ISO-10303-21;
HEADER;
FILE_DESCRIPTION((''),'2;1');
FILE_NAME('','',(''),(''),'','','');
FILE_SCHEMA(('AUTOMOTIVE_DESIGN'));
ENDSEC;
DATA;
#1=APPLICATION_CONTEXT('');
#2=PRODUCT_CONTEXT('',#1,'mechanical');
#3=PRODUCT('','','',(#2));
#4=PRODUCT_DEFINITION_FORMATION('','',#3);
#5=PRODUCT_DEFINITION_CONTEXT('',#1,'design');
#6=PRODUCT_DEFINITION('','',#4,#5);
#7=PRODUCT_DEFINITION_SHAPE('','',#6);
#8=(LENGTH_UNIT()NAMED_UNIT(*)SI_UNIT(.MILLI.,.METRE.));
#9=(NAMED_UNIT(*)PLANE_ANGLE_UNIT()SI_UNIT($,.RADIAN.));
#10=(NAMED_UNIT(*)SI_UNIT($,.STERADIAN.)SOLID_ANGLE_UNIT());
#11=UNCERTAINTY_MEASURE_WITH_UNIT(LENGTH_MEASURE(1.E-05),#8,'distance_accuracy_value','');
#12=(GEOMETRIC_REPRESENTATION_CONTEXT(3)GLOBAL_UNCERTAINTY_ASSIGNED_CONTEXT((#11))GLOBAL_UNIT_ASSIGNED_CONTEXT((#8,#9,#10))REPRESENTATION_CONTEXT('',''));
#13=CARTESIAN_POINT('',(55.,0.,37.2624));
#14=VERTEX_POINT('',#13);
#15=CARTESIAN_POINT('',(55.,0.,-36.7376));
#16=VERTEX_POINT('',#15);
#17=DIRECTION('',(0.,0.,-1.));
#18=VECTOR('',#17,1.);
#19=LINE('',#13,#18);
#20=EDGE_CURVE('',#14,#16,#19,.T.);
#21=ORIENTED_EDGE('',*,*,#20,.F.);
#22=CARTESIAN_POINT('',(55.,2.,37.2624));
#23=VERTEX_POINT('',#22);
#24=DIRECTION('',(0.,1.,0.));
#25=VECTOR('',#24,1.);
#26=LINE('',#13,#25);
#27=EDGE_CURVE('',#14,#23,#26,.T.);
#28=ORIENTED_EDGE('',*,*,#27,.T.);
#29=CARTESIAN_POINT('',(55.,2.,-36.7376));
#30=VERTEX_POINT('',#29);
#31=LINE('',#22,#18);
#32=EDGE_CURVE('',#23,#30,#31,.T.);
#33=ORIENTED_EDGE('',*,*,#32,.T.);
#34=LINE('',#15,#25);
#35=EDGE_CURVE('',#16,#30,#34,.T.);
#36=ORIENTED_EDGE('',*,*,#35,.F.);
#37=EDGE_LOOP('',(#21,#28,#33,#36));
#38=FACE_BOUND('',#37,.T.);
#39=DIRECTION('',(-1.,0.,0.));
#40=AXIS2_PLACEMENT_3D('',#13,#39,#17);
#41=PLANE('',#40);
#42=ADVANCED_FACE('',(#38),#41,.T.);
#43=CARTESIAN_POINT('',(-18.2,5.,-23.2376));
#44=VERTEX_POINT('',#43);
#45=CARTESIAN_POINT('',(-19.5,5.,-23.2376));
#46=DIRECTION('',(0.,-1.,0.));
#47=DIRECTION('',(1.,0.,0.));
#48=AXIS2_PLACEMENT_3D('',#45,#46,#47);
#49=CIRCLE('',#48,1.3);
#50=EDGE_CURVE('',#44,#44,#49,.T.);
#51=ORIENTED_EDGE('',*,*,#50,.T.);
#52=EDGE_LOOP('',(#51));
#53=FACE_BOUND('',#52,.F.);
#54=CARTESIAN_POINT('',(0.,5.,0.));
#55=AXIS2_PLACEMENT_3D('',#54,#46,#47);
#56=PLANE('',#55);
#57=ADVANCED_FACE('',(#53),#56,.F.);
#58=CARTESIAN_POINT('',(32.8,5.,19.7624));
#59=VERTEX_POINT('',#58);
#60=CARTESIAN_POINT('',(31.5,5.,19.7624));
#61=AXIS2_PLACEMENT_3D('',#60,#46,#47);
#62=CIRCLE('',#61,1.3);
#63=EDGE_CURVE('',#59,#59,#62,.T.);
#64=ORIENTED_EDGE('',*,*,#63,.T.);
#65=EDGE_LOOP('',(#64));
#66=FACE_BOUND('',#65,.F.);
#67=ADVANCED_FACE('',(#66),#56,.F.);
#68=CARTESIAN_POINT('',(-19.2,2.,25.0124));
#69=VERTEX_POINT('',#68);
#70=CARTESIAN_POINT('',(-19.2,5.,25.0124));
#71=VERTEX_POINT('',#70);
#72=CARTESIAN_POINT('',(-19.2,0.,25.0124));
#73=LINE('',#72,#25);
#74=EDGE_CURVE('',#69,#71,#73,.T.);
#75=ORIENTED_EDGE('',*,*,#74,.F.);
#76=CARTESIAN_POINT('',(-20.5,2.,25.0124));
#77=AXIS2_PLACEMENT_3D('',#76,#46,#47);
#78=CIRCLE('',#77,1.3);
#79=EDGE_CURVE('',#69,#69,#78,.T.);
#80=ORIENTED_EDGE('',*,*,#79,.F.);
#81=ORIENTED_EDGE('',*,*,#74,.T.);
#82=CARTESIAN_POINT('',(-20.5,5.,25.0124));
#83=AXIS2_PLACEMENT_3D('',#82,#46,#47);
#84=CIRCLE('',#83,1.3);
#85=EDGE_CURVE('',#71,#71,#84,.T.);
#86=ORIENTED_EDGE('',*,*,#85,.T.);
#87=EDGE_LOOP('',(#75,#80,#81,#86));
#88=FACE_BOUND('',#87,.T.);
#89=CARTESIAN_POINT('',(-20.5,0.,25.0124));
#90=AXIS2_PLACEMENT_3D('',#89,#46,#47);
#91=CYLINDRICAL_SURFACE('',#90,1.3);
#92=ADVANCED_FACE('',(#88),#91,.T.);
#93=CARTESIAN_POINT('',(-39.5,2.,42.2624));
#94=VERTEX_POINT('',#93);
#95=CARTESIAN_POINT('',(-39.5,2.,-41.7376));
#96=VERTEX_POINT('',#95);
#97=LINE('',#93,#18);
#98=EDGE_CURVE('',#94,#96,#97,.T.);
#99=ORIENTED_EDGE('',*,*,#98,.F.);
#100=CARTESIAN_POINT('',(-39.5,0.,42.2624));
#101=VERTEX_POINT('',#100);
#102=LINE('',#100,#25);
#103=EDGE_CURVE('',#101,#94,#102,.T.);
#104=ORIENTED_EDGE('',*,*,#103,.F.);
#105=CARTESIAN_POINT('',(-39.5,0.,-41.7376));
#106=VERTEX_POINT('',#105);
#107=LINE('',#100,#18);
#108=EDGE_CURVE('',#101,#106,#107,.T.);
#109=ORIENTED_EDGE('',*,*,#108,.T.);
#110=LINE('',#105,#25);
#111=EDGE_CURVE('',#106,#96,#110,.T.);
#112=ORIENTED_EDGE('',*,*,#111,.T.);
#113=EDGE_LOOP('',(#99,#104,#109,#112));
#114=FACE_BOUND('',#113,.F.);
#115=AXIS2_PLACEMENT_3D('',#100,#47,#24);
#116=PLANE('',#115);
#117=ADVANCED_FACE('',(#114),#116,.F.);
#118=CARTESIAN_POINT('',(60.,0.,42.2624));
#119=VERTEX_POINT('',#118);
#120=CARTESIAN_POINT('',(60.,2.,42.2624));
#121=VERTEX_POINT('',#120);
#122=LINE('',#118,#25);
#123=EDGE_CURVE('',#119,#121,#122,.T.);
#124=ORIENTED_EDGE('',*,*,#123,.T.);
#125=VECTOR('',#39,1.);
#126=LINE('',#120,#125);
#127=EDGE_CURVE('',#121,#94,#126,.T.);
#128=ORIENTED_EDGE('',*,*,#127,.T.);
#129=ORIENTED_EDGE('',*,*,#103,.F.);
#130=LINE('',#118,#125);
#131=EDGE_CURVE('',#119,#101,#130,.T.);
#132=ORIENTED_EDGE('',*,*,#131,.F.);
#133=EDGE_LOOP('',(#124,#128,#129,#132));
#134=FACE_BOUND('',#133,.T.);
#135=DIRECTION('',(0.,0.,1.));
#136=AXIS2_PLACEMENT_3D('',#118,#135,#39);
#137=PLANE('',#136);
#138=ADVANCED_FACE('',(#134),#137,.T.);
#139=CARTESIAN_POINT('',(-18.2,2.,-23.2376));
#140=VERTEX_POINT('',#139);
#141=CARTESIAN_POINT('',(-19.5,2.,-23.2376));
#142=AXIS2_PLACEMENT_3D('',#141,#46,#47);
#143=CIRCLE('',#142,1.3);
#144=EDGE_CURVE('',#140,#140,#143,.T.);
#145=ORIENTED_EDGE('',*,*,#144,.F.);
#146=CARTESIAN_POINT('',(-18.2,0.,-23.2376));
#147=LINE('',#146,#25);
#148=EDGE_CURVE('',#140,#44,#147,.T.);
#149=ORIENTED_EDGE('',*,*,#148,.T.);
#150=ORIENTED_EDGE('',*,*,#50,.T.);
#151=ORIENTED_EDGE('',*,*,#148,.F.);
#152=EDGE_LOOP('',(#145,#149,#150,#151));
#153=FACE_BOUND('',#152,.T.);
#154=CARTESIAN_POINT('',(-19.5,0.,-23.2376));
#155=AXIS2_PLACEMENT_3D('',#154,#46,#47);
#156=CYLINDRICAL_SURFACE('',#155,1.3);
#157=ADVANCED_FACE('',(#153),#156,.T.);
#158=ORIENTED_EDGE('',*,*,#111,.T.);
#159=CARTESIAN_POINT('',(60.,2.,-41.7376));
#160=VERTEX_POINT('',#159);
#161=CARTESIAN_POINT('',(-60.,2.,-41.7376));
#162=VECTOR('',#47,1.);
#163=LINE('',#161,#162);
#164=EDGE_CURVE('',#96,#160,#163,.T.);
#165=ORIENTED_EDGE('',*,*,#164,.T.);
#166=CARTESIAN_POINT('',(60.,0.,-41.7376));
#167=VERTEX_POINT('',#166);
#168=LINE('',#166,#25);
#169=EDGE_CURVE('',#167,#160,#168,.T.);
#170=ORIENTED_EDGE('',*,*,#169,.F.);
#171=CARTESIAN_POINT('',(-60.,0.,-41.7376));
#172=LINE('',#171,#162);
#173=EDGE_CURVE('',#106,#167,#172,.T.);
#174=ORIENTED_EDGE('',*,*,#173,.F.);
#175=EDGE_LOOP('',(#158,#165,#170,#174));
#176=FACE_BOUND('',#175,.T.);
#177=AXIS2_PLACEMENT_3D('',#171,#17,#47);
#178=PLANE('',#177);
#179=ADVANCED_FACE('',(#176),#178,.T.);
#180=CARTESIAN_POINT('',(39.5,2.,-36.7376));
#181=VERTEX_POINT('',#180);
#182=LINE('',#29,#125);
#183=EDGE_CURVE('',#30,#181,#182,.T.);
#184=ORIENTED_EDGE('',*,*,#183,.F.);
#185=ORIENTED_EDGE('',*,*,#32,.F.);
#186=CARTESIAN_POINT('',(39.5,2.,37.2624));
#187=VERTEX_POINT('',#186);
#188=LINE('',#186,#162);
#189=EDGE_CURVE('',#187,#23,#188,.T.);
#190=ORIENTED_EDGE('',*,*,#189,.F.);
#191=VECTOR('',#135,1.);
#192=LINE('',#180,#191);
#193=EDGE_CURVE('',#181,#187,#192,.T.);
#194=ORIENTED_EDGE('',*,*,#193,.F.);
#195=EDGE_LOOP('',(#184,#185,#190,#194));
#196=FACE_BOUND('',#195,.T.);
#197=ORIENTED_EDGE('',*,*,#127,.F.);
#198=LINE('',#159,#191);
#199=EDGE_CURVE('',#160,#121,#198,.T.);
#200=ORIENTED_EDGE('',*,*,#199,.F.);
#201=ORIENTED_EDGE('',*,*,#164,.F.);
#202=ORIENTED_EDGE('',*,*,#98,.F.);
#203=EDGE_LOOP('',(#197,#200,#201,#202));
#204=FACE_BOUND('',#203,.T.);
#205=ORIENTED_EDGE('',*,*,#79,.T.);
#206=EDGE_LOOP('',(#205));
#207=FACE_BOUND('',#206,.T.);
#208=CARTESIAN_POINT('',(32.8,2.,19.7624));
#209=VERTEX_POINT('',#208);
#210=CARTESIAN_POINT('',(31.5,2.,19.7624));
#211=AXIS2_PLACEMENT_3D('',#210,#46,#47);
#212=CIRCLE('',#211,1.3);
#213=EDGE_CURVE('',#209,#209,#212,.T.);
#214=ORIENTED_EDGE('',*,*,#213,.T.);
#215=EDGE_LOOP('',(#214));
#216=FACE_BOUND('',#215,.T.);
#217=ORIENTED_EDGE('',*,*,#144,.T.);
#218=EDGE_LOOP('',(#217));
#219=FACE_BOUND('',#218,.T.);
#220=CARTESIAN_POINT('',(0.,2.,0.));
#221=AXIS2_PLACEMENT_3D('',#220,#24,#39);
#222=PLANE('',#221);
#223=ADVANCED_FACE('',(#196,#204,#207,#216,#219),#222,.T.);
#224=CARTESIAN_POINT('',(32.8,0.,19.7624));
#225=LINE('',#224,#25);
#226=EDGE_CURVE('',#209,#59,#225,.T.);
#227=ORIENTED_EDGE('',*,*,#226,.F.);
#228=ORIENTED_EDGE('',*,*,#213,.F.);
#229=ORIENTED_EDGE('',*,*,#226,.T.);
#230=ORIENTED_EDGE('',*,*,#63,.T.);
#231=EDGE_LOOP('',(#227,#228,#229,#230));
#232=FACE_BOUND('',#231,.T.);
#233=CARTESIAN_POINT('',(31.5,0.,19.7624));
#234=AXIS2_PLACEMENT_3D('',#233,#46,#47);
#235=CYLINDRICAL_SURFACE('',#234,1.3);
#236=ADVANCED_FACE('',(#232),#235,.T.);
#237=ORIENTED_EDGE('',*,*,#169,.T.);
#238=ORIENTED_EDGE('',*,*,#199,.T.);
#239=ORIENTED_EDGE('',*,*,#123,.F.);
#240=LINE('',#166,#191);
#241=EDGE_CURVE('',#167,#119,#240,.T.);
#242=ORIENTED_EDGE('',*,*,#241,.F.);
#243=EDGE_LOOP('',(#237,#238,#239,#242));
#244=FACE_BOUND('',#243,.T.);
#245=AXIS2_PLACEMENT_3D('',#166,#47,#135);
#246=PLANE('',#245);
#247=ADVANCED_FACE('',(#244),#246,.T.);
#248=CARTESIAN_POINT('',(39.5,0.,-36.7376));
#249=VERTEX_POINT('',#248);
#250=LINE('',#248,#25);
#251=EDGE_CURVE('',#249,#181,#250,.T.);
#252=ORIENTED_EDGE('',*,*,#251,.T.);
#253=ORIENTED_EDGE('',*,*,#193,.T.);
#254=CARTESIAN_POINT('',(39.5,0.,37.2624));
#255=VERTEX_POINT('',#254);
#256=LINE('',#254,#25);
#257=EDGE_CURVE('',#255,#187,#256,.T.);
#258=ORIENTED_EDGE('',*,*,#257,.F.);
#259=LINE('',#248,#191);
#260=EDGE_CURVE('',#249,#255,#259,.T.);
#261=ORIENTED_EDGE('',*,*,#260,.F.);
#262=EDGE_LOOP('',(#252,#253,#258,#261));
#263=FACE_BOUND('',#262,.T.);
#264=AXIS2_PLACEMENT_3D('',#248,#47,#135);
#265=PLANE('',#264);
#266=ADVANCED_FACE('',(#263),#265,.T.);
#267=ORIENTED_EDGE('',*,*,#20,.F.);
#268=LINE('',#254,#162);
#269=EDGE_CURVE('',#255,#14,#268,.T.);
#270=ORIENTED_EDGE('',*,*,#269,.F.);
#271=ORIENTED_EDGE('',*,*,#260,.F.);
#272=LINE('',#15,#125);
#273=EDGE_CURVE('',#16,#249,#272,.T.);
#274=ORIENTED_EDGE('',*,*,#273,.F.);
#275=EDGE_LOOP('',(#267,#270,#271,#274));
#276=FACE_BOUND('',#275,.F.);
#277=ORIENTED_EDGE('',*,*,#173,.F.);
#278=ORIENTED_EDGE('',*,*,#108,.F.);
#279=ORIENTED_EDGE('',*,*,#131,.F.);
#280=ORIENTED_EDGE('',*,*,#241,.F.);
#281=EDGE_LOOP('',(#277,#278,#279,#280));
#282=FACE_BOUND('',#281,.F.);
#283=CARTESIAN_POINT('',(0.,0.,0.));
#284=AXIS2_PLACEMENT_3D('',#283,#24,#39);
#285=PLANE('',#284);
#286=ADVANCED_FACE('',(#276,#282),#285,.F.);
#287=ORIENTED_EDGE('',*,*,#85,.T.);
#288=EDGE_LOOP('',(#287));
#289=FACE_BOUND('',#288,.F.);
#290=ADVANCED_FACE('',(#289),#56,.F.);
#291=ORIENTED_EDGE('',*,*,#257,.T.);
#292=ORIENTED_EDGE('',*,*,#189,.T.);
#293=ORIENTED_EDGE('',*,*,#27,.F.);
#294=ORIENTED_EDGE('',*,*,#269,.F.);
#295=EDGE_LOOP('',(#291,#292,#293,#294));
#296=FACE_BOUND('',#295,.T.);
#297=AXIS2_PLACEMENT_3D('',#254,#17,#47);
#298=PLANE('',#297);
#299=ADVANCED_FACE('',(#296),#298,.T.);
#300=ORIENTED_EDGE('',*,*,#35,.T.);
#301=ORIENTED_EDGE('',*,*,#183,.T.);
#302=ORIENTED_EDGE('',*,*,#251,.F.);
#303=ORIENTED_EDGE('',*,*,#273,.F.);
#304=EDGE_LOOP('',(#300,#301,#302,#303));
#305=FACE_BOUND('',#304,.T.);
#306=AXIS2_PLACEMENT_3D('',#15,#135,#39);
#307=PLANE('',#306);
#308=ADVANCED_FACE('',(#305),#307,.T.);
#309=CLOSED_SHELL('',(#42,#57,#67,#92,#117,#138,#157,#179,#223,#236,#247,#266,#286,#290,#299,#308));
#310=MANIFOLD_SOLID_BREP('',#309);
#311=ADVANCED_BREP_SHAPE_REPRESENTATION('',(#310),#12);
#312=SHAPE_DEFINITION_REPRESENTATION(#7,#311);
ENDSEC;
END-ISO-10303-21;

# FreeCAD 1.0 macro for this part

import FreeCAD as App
import Part
import Sketcher
Q = App.Units.Quantity


def add_polygon(sketch, points):
    """Adds a closed chain of lines whose ends are joined by coincident constraints."""
    first, n = sketch.GeometryCount, len(points)
    for a, b in zip(points, points[1:] + points[:1]):
        sketch.addGeometry(Part.LineSegment(App.Vector(*a, 0), App.Vector(*b, 0)), False)
    for i in range(n):
        sketch.addConstraint(Sketcher.Constraint("Coincident", first + i, 2, first + (i + 1) % n, 1))

doc = App.newDocument("Part")
body = doc.addObject("PartDesign::Body", "Body")

# Sketch on XZ plane
sketch1 = body.newObject("Sketcher::SketchObject", "Sketch")
sketch1.AttachmentSupport = (doc.getObject("XZ_Plane"), [""])
sketch1.MapMode = "FlatFace"
add_polygon(sketch1, [(-60, 42), (60, 42), (60, -42), (-60, -42)])  # lines 0-3
add_polygon(sketch1, [(55, 37), (40, 37), (40, -37), (55, -37)])  # lines 4-7
add_polygon(sketch1, [(-40, -37), (-40, 37), (-55, 37), (-55, -37)])  # lines 8-11
sketch1.addConstraint(Sketcher.Constraint("Horizontal", 0))
sketch1.addConstraint(Sketcher.Constraint("Vertical", 1))
sketch1.addConstraint(Sketcher.Constraint("Horizontal", 2))
sketch1.addConstraint(Sketcher.Constraint("Vertical", 3))
sketch1.addConstraint(Sketcher.Constraint("Horizontal", 4))
sketch1.addConstraint(Sketcher.Constraint("Vertical", 5))
sketch1.addConstraint(Sketcher.Constraint("Horizontal", 6))
sketch1.addConstraint(Sketcher.Constraint("Vertical", 7))
sketch1.addConstraint(Sketcher.Constraint("Vertical", 8))
sketch1.addConstraint(Sketcher.Constraint("Horizontal", 9))
sketch1.addConstraint(Sketcher.Constraint("Vertical", 10))
sketch1.addConstraint(Sketcher.Constraint("Horizontal", 11))
sketch1.addConstraint(Sketcher.Constraint("Symmetric", 4, 2, 8, 2, -2))
sketch1.addConstraint(Sketcher.Constraint("Symmetric", 6, 2, 10, 2, -2))
sketch1.addConstraint(Sketcher.Constraint("DistanceX", 0, 1, 0, 2, Q("120 mm")))
sketch1.addConstraint(Sketcher.Constraint("DistanceY", 1, 2, 1, 1, Q("84 mm")))
sketch1.addConstraint(Sketcher.Constraint("DistanceX", 4, 2, 4, 1, Q("15.5 mm")))
sketch1.addConstraint(Sketcher.Constraint("DistanceY", 4, 2, 0, 2, Q("5 mm")))
sketch1.addConstraint(Sketcher.Constraint("DistanceY", 1, 2, 5, 2, Q("5 mm")))
sketch1.addConstraint(Sketcher.Constraint("DistanceX", 6, 2, 1, 2, Q("5 mm")))
sketch1.addConstraint(Sketcher.Constraint("DistanceX", 3, 2, 9, 2, Q("5 mm")))
sketch1.addConstraint(Sketcher.Constraint("DistanceY", -1, 1, 0, 2, Q("42.2624 mm")))
pad1 = body.newObject("PartDesign::Pad", "Pad")
pad1.Profile = sketch1
pad1.Length = 2
pad1.Reversed = True

# Sketch on XZ plane
sketch2 = body.newObject("Sketcher::SketchObject", "Sketch001")
sketch2.AttachmentSupport = (doc.getObject("XZ_Plane"), [""])
sketch2.MapMode = "FlatFace"
sketch2.addGeometry(Part.Circle(App.Vector(-20.5, 25, 0), App.Vector(0, 0, 1), 1.3), False)
sketch2.addGeometry(Part.Circle(App.Vector(31.5, 19.8, 0), App.Vector(0, 0, 1), 1.3), False)
sketch2.addGeometry(Part.Circle(App.Vector(-19.5, -23.2, 0), App.Vector(0, 0, 1), 1.3), False)
sketch2.addConstraint(Sketcher.Constraint("Equal", 0, 1))
sketch2.addConstraint(Sketcher.Constraint("Equal", 1, 2))
sketch2.addConstraint(Sketcher.Constraint("Diameter", 0, Q("2.6 mm")))
sketch2.addConstraint(Sketcher.Constraint("DistanceX", 0, 3, 2, 3, Q("1 mm")))
sketch2.addConstraint(Sketcher.Constraint("DistanceY", 2, 3, 0, 3, Q("48.25 mm")))
sketch2.addConstraint(Sketcher.Constraint("DistanceX", 0, 3, 1, 3, Q("52 mm")))
sketch2.addConstraint(Sketcher.Constraint("DistanceY", 2, 3, 1, 3, Q("43 mm")))
sketch2.addConstraint(Sketcher.Constraint("DistanceX", 0, 3, -1, 1, Q("20.5 mm")))
sketch2.addConstraint(Sketcher.Constraint("DistanceY", -1, 1, 0, 3, Q("25.0124 mm")))
pad2 = body.newObject("PartDesign::Pad", "Pad001")
pad2.Profile = sketch2
pad2.Length = 5
pad2.Reversed = True

# Sketch on XZ plane
sketch3 = body.newObject("Sketcher::SketchObject", "Sketch002")
sketch3.AttachmentSupport = (doc.getObject("XZ_Plane"), [""])
sketch3.MapMode = "FlatFace"
sketch3.addGeometry(Part.Circle(App.Vector(-20.5, 23.8, 0), App.Vector(0, 0, 1), 1.3), False)
sketch3.addGeometry(Part.Circle(App.Vector(31.5, 18.8, 0), App.Vector(0, 0, 1), 1.3), False)
sketch3.addConstraint(Sketcher.Constraint("Equal", 0, 1))
sketch3.addConstraint(Sketcher.Constraint("Diameter", 0, Q("2.6 mm")))
sketch3.addConstraint(Sketcher.Constraint("DistanceX", 0, 3, 1, 3, Q("52 mm")))
sketch3.addConstraint(Sketcher.Constraint("DistanceY", 1, 3, 0, 3, Q("5 mm")))
sketch3.addConstraint(Sketcher.Constraint("DistanceX", 0, 3, -1, 1, Q("20.5 mm")))
sketch3.addConstraint(Sketcher.Constraint("DistanceY", -1, 1, 0, 3, Q("23.7624 mm")))
pad3 = body.newObject("PartDesign::Pad", "Pad002")
pad3.Profile = sketch3
pad3.Length = 2
pad3.Reversed = True

# Sketch on XY plane
sketch4 = body.newObject("Sketcher::SketchObject", "Sketch003")
sketch4.AttachmentSupport = (doc.getObject("XY_Plane"), [""])
sketch4.MapMode = "FlatFace"
sketch4.AttachmentOffset = App.Placement(App.Vector(0, 0, 42.2624), App.Rotation())
add_polygon(sketch4, [(-60, 2), (-60, 0), (-39.5, 0), (-39.5, 2)])  # lines 0-3
sketch4.addConstraint(Sketcher.Constraint("Vertical", 0))
sketch4.addConstraint(Sketcher.Constraint("Horizontal", 1))
sketch4.addConstraint(Sketcher.Constraint("Vertical", 2))
sketch4.addConstraint(Sketcher.Constraint("Horizontal", 3))
sketch4.addConstraint(Sketcher.Constraint("PointOnObject", 0, 2, -1))
sketch4.addConstraint(Sketcher.Constraint("DistanceY", 0, 2, 0, 1, Q("2 mm")))
sketch4.addConstraint(Sketcher.Constraint("DistanceX", 1, 1, 1, 2, Q("20.5 mm")))
sketch4.addConstraint(Sketcher.Constraint("DistanceX", 0, 2, -1, 1, Q("60 mm")))
pocket1 = body.newObject("PartDesign::Pocket", "Pocket")
pocket1.Profile = sketch4
pocket1.Length = 84

doc.recompute()
